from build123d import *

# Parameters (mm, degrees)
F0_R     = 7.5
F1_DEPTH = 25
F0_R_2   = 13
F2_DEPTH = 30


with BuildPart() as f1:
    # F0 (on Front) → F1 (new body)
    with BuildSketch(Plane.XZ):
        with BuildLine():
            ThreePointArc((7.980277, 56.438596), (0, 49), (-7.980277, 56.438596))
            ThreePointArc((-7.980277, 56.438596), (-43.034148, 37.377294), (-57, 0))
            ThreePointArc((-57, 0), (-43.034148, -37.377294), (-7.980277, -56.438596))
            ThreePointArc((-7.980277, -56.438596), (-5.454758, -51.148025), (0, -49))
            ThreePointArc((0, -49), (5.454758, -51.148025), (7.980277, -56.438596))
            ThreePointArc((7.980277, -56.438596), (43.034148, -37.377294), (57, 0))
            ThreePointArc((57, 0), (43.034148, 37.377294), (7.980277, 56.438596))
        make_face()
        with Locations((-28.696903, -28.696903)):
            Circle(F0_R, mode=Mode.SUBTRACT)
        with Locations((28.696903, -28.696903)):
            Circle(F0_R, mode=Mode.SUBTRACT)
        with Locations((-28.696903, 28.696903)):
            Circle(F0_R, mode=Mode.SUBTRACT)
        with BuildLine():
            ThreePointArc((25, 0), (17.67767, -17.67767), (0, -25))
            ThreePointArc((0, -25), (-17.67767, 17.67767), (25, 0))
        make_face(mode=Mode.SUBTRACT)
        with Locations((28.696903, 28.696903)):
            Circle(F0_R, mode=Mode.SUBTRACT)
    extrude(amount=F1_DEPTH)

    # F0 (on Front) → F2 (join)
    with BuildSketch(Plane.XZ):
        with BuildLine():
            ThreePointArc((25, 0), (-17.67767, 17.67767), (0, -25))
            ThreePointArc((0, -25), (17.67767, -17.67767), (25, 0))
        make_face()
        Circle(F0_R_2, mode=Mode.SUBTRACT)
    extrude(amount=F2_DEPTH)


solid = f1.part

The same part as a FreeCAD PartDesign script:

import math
import FreeCAD as App
import Part
import Sketcher

doc = App.newDocument("Part")
body = doc.addObject("PartDesign::Body", "Body")

sketch1 = doc.addObject("Sketcher::SketchObject", "Sketch")
body.addObject(sketch1)
sketch1.AttachmentSupport = (doc.XZ_Plane, [""])
sketch1.MapMode = "FlatFace"
sketch1.addGeometry(Part.ArcOfCircle(Part.Circle(App.Vector(0, 57, 0), App.Vector(0, 0, 1), 8), math.radians(-176), math.radians(-4)), False)
sketch1.addGeometry(Part.ArcOfCircle(Part.Circle(App.Vector(0, 0, 0), App.Vector(0, 0, 1), 57), math.radians(98), math.radians(180)), False)
sketch1.addGeometry(Part.ArcOfCircle(Part.Circle(App.Vector(0, 0, 0), App.Vector(0, 0, 1), 57), math.radians(180), math.radians(262)), False)
sketch1.addGeometry(Part.ArcOfCircle(Part.Circle(App.Vector(0, -57, 0), App.Vector(0, 0, 1), 8), math.radians(90), math.radians(176)), False)
sketch1.addGeometry(Part.ArcOfCircle(Part.Circle(App.Vector(0, -57, 0), App.Vector(0, 0, 1), 8), math.radians(4), math.radians(90)), False)
sketch1.addGeometry(Part.ArcOfCircle(Part.Circle(App.Vector(0, 0, 0), App.Vector(0, 0, 1), 57), math.radians(-82), math.radians(0)), False)
sketch1.addGeometry(Part.ArcOfCircle(Part.Circle(App.Vector(0, 0, 0), App.Vector(0, 0, 1), 57), math.radians(0), math.radians(82)), False)
sketch1.addGeometry(Part.Circle(App.Vector(-29, -29, 0), App.Vector(0, 0, 1), 8), False)
sketch1.addGeometry(Part.Circle(App.Vector(29, -29, 0), App.Vector(0, 0, 1), 8), False)
sketch1.addGeometry(Part.ArcOfCircle(Part.Circle(App.Vector(0, 0, 0), App.Vector(0, 0, 1), 25), math.radians(0), math.radians(270)), False)
sketch1.addGeometry(Part.ArcOfCircle(Part.Circle(App.Vector(0, 0, 0), App.Vector(0, 0, 1), 25), math.radians(-90), math.radians(0)), False)
sketch1.addGeometry(Part.Circle(App.Vector(-29, 29, 0), App.Vector(0, 0, 1), 8), False)
sketch1.addGeometry(Part.Circle(App.Vector(29, 29, 0), App.Vector(0, 0, 1), 8), False)
sketch1.addConstraint(Sketcher.Constraint("Coincident", 0, 1, 1, 1))
sketch1.addConstraint(Sketcher.Constraint("Tangent", 1, 2, 2, 1))
sketch1.addConstraint(Sketcher.Constraint("Coincident", 2, 2, 3, 2))
sketch1.addConstraint(Sketcher.Constraint("Tangent", 3, 1, 4, 2))
sketch1.addConstraint(Sketcher.Constraint("Coincident", 4, 1, 5, 1))
sketch1.addConstraint(Sketcher.Constraint("Tangent", 5, 2, 6, 1))
sketch1.addConstraint(Sketcher.Constraint("Coincident", 6, 2, 0, 2))
sketch1.addConstraint(Sketcher.Constraint("Tangent", 9, 1, 10, 2))
sketch1.addConstraint(Sketcher.Constraint("Coincident", 10, 1, 9, 2))
sketch1.addConstraint(Sketcher.Constraint("Coincident", 1, 3, -1, 1))
sketch1.addConstraint(Sketcher.Constraint("Coincident", 5, 3, -1, 1))
sketch1.addConstraint(Sketcher.Constraint("Coincident", 9, 3, -1, 1))
sketch1.addConstraint(Sketcher.Constraint("Equal", 1, 2))
sketch1.addConstraint(Sketcher.Constraint("Equal", 0, 3))
sketch1.addConstraint(Sketcher.Constraint("Equal", 3, 4))
sketch1.addConstraint(Sketcher.Constraint("Equal", 2, 5))
sketch1.addConstraint(Sketcher.Constraint("Equal", 5, 6))
sketch1.addConstraint(Sketcher.Constraint("Equal", 7, 8))
sketch1.addConstraint(Sketcher.Constraint("Equal", 8, 11))
sketch1.addConstraint(Sketcher.Constraint("Equal", 11, 12))
sketch1.addConstraint(Sketcher.Constraint("Symmetric", 0, 3, 3, 3, -1, 1))
sketch1.addConstraint(Sketcher.Constraint("Symmetric", 8, 3, 11, 3, -1, 1))
sketch1.addConstraint(Sketcher.Constraint("Symmetric", 7, 3, 12, 3, -1, 1))
sketch1.addConstraint(Sketcher.Constraint("Symmetric", 7, 3, 8, 3, -2))
sketch1.addConstraint(Sketcher.Constraint("PointOnObject", 0, 3, -2))
sketch1.addConstraint(Sketcher.Constraint("PointOnObject", 1, 2, -1))
sketch1.addConstraint(Sketcher.Constraint("PointOnObject", 3, 1, -2))
sketch1.addConstraint(Sketcher.Constraint("PointOnObject", 5, 2, -1))
sketch1.addConstraint(Sketcher.Constraint("PointOnObject", 9, 1, -1))
sketch1.addConstraint(Sketcher.Constraint("PointOnObject", 10, 1, -2))
sketch1.addConstraint(Sketcher.Constraint("Diameter", 7, 15.0))
sketch1.addConstraint(Sketcher.Constraint("Radius", 0, 8.0))
sketch1.addConstraint(Sketcher.Constraint("Radius", 1, 56.999999))
sketch1.addConstraint(Sketcher.Constraint("Radius", 9, 25.0))
sketch1.addConstraint(Sketcher.Constraint("DistanceY", -1, 1, 0, 3, 57.0))
sketch1.addConstraint(Sketcher.Constraint("DistanceX", 7, 3, 2, 3, 28.696902))
sketch1.addConstraint(Sketcher.Constraint("DistanceY", 7, 3, -1, 1, 28.696903))
pad1 = doc.addObject("PartDesign::Pad", "Pad")
body.addObject(pad1)
pad1.Profile = sketch1
pad1.Length = 25

sketch2 = doc.addObject("Sketcher::SketchObject", "Sketch001")
body.addObject(sketch2)
sketch2.AttachmentSupport = (doc.XZ_Plane, [""])
sketch2.MapMode = "FlatFace"
sketch2.addGeometry(Part.ArcOfCircle(Part.Circle(App.Vector(0, 0, 0), App.Vector(0, 0, 1), 25), math.radians(0), math.radians(270)), False)
sketch2.addGeometry(Part.ArcOfCircle(Part.Circle(App.Vector(0, 0, 0), App.Vector(0, 0, 1), 25), math.radians(-90), math.radians(0)), False)
sketch2.addGeometry(Part.Circle(App.Vector(0, 0, 0), App.Vector(0, 0, 1), 13), False)
sketch2.addConstraint(Sketcher.Constraint("Tangent", 0, 1, 1, 2))
sketch2.addConstraint(Sketcher.Constraint("Coincident", 1, 1, 0, 2))
sketch2.addConstraint(Sketcher.Constraint("Coincident", 0, 3, -1, 1))
sketch2.addConstraint(Sketcher.Constraint("Coincident", 2, 3, -1, 1))
sketch2.addConstraint(Sketcher.Constraint("PointOnObject", 0, 1, -1))
sketch2.addConstraint(Sketcher.Constraint("PointOnObject", 1, 1, -2))
sketch2.addConstraint(Sketcher.Constraint("Diameter", 2, 26.0))
sketch2.addConstraint(Sketcher.Constraint("Radius", 0, 25.0))
pad2 = doc.addObject("PartDesign::Pad", "Pad001")
body.addObject(pad2)
pad2.Profile = sketch2
pad2.Length = 30

doc.recompute()
